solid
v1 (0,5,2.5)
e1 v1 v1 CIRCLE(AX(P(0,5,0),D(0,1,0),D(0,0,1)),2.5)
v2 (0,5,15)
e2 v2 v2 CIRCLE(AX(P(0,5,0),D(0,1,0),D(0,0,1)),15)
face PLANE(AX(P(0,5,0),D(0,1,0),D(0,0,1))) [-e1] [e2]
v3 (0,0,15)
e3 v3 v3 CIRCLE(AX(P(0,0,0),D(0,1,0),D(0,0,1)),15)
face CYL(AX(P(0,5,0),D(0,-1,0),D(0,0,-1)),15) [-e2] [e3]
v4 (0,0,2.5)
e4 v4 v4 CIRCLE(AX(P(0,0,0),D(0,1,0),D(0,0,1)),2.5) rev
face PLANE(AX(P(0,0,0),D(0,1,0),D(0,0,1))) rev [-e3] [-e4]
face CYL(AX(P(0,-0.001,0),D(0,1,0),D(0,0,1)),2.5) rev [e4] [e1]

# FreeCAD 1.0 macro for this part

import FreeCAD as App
import Part
import Sketcher
from FreeCAD import Vector

doc = App.newDocument("Part")
body = doc.addObject("PartDesign::Body", "Body")

# Sketch on XZ plane
sketch1 = body.newObject("Sketcher::SketchObject", "Sketch")
sketch1.AttachmentSupport = (doc.getObject("XZ_Plane"), [""])
sketch1.MapMode = "FlatFace"
sketch1.addGeometry(Part.Circle(Vector(0, 0, 0), Vector(0, 0, 1), 15), False)
sketch1.addConstraint(Sketcher.Constraint("Coincident", 0, 3, -1, 1))
sketch1.addConstraint(Sketcher.Constraint("Diameter", 0, 30.0))
pad1 = body.newObject("PartDesign::Pad", "Pad")
pad1.Profile = sketch1
pad1.Length = 5
pad1.Reversed = True

# Sketch on XZ plane
sketch2 = body.newObject("Sketcher::SketchObject", "Sketch001")
sketch2.AttachmentSupport = (doc.getObject("XZ_Plane"), [""])
sketch2.MapMode = "FlatFace"
sketch2.AttachmentOffset = App.Placement(Vector(0, 0, -5), App.Rotation())
sketch2.addGeometry(Part.Circle(Vector(0, 0, 0), Vector(0, 0, 1), 2.5), False)
sketch2.addConstraint(Sketcher.Constraint("Coincident", 0, 3, -1, 1))
sketch2.addConstraint(Sketcher.Constraint("Diameter", 0, 5.0))
pocket1 = body.newObject("PartDesign::Pocket", "Pocket")
pocket1.Profile = sketch2
pocket1.Type = "UpToFirst"
pocket1.Reversed = True

doc.recompute()
